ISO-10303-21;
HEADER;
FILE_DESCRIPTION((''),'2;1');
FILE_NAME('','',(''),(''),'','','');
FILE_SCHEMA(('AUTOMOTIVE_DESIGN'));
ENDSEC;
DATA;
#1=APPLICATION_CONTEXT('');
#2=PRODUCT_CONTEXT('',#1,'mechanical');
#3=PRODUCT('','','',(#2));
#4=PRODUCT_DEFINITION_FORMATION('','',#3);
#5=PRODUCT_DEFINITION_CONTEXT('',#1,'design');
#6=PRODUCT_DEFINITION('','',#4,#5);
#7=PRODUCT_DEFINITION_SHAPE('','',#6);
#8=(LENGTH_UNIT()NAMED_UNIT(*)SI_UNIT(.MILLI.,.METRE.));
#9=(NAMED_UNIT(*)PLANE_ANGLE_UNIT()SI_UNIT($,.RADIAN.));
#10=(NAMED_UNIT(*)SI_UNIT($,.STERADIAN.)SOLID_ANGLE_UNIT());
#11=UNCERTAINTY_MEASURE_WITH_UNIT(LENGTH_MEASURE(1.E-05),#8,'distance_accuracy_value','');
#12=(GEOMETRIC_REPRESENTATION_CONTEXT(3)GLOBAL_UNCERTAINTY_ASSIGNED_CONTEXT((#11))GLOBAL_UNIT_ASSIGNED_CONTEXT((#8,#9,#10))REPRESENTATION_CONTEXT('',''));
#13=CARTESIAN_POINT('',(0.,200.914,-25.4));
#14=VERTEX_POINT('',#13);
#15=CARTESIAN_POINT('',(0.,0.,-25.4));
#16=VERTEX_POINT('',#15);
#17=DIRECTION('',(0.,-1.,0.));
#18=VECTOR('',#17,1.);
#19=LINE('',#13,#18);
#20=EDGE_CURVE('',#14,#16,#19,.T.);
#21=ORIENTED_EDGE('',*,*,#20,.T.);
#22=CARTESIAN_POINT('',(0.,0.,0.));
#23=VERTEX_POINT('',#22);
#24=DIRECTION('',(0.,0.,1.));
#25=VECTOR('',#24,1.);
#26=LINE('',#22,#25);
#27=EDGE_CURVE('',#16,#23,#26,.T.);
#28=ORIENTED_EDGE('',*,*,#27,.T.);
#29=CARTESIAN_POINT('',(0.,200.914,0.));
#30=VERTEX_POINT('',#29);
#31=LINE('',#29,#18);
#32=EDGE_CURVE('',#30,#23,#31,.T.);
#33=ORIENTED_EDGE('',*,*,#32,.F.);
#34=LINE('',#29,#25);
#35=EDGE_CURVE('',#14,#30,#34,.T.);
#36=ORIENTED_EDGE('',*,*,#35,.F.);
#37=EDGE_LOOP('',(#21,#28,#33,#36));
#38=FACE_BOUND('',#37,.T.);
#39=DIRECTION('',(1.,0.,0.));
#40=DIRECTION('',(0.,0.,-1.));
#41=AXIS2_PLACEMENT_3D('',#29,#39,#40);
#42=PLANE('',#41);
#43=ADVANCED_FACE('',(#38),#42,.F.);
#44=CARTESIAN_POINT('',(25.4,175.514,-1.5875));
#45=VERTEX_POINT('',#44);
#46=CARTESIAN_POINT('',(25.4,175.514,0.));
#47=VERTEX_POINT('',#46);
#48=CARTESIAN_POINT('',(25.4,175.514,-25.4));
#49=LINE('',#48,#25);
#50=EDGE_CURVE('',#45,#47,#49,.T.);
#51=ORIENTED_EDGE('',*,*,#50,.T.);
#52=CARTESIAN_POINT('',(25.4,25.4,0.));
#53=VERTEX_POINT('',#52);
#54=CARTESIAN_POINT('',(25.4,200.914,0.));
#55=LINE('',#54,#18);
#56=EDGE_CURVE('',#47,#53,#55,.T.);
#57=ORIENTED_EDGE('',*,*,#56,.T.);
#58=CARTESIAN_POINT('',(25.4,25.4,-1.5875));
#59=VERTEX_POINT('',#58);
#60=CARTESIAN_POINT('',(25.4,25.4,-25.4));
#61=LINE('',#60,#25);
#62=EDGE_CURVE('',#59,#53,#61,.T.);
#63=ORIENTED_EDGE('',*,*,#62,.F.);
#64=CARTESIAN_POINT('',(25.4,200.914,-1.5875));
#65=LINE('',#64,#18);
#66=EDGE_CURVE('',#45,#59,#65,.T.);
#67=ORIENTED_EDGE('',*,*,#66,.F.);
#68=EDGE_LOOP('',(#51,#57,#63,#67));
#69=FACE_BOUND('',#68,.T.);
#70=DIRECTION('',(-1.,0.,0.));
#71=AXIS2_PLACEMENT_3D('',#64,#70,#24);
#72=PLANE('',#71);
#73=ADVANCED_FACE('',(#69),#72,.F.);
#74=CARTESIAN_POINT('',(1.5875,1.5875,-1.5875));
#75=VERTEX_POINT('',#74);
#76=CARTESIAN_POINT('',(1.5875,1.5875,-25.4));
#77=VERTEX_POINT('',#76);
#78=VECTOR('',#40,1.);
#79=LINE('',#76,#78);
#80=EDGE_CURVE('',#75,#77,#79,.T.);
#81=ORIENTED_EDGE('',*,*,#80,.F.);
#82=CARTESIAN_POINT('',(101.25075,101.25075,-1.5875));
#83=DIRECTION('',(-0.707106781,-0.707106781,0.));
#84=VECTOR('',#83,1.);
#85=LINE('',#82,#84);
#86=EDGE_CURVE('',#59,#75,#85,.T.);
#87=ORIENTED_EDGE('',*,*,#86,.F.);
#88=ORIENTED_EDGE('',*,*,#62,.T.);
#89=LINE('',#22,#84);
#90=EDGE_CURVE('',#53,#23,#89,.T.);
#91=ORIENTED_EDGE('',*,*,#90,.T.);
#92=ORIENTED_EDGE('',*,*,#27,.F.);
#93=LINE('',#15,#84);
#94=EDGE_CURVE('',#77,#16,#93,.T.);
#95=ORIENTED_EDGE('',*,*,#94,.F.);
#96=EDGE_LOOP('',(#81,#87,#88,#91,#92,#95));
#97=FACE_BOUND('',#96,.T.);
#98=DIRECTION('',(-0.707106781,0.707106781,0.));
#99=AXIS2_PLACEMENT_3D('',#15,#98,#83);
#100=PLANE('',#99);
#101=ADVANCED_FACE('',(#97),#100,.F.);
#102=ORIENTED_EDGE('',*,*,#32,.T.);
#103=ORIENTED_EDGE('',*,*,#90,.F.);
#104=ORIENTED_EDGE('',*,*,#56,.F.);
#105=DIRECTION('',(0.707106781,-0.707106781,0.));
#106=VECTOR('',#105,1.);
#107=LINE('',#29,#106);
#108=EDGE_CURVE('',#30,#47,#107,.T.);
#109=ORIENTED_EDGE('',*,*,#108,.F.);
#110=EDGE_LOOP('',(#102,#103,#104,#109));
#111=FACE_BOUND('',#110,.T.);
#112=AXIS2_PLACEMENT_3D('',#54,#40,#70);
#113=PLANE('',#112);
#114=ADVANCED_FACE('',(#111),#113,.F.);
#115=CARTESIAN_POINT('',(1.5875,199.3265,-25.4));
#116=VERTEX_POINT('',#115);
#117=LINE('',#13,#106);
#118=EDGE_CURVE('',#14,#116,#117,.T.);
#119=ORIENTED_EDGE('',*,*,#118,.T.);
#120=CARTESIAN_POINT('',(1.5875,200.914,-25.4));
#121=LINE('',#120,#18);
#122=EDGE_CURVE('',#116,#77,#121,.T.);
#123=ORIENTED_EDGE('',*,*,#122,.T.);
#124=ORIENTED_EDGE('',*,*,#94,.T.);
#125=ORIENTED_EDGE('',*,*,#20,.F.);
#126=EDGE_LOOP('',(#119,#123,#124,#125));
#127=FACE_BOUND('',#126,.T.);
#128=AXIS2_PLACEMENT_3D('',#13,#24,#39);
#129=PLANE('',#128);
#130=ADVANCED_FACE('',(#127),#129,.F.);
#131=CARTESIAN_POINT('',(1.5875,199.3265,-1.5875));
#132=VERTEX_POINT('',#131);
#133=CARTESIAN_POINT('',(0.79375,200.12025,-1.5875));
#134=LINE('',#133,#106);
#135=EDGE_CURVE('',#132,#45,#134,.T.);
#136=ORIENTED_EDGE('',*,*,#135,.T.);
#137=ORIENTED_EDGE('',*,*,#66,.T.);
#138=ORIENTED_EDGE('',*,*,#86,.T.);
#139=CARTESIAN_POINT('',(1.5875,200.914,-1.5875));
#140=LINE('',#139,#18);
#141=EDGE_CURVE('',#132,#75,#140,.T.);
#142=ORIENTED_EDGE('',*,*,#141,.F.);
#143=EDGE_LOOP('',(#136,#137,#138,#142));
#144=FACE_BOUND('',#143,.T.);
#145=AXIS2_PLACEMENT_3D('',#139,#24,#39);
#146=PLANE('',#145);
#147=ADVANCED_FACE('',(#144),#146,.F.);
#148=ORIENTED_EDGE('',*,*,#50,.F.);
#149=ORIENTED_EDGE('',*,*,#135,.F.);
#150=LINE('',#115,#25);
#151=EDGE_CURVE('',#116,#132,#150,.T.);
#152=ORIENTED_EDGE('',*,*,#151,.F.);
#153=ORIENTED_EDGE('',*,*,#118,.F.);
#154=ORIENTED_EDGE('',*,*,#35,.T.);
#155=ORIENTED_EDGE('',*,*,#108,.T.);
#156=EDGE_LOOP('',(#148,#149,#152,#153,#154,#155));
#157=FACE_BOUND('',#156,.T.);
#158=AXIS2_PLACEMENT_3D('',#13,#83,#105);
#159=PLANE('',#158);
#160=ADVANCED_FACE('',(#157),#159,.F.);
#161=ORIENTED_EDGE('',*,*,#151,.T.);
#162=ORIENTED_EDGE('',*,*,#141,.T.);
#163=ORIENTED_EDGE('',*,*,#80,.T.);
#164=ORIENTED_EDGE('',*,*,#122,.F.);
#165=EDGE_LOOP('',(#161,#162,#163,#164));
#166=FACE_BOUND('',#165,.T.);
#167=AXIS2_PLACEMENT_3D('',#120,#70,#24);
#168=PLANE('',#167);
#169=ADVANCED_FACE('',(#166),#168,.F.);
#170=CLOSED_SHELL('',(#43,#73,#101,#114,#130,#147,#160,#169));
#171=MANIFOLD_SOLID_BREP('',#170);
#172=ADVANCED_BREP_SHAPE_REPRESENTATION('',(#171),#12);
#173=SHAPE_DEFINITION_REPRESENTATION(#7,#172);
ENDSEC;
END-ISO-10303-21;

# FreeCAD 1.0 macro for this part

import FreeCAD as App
import Part
import Sketcher

V = App.Vector
Q = App.Units.Quantity


def add_polygon(sketch, points):
    """Adds a closed chain of lines whose ends are joined by coincident constraints."""
    first, n = sketch.GeometryCount, len(points)
    for a, b in zip(points, points[1:] + points[:1]):
        sketch.addGeometry(Part.LineSegment(App.Vector(*a, 0), App.Vector(*b, 0)), False)
    for i in range(n):
        sketch.addConstraint(Sketcher.Constraint("Coincident", first + i, 2, first + (i + 1) % n, 1))

doc = App.newDocument("Part")
params = doc.addObject("Spreadsheet::Sheet", "Params")
for row, (alias, value) in enumerate([
    ("sketch1_width", "1 in"),
    ("sketch1_width2", "0.9375 in"),
    ("pad1_length", "7.91 in"),
    ("sketch2_width", "1 in"),
    ("sketch3_width", "1 in"),
], start=1):
    params.set(f"A{row}", alias)
    params.set(f"B{row}", "=" + value)
    params.setAlias(f"B{row}", alias)

body = doc.addObject("PartDesign::Body", "Body")

sketch1 = body.newObject("Sketcher::SketchObject", "Sketch")
sketch1.AttachmentSupport = (doc.getObject("XZ_Plane"), [""])
sketch1.MapMode = "FlatFace"
add_polygon(sketch1, [(0, -25.4), (0, 0), (25.4, 0), (25.4, -1.6), (1.6, -1.6), (1.6, -25.4)])
sketch1.addConstraint([
    Sketcher.Constraint("Vertical", 0),
    Sketcher.Constraint("Horizontal", 1),
    Sketcher.Constraint("Vertical", 2),
    Sketcher.Constraint("Horizontal", 3),
    Sketcher.Constraint("Vertical", 4),
    Sketcher.Constraint("Horizontal", 5),
    Sketcher.Constraint("Coincident", 0, 2, -1, 1),
    Sketcher.Constraint("Equal", 1, 0),
    Sketcher.Constraint("Equal", 5, 2),
    Sketcher.Constraint("DistanceX", 1, 1, 1, 2, Q("1 in")),
    Sketcher.Constraint("DistanceX", 3, 2, 3, 1, Q("0.9375 in")),
])
sketch1.setExpression("Constraints[15]", "Params.sketch1_width")
sketch1.setExpression("Constraints[16]", "Params.sketch1_width2")
pad1 = body.newObject("PartDesign::Pad", "Pad")
pad1.Profile = sketch1
pad1.setExpression("Length", "Params.pad1_length")
pad1.Reversed = True

sketch2 = body.newObject("Sketcher::SketchObject", "Sketch001")
sketch2.AttachmentSupport = (doc.getObject("XY_Plane"), [""])
sketch2.MapMode = "FlatFace"
add_polygon(sketch2, [(0, 201), (25, 176), (25, 201)])
sketch2.addConstraint([
    Sketcher.Constraint("Vertical", 1),
    Sketcher.Constraint("Horizontal", 2),
    Sketcher.Constraint("PointOnObject", 2, 2, -2),
    Sketcher.Constraint("Equal", 2, 1),
    Sketcher.Constraint("DistanceX", 2, 2, 2, 1, Q("1 in")),
    Sketcher.Constraint("DistanceY", -1, 1, 0, 2, Q("6.91 in")),
])
sketch2.setExpression("Constraints[7]", "Params.sketch2_width")
pocket1 = body.newObject("PartDesign::Pocket", "Pocket")
pocket1.Profile = sketch2
pocket1.Type = "ThroughAll"

sketch3 = body.newObject("Sketcher::SketchObject", "Sketch002")
sketch3.AttachmentSupport = (doc.getObject("XY_Plane"), [""])
sketch3.MapMode = "FlatFace"
add_polygon(sketch3, [(25, 25), (0, 0), (25, 0)])
sketch3.addConstraint([
    Sketcher.Constraint("Horizontal", 1),
    Sketcher.Constraint("Vertical", 2),
    Sketcher.Constraint("Coincident", 0, 2, -1, 1),
    Sketcher.Constraint("Equal", 1, 2),
    Sketcher.Constraint("DistanceX", 1, 1, 1, 2, Q("1 in")),
])
sketch3.setExpression("Constraints[7]", "Params.sketch3_width")
pocket2 = body.newObject("PartDesign::Pocket", "Pocket001")
pocket2.Profile = sketch3
pocket2.Type = "ThroughAll"

doc.recompute()
